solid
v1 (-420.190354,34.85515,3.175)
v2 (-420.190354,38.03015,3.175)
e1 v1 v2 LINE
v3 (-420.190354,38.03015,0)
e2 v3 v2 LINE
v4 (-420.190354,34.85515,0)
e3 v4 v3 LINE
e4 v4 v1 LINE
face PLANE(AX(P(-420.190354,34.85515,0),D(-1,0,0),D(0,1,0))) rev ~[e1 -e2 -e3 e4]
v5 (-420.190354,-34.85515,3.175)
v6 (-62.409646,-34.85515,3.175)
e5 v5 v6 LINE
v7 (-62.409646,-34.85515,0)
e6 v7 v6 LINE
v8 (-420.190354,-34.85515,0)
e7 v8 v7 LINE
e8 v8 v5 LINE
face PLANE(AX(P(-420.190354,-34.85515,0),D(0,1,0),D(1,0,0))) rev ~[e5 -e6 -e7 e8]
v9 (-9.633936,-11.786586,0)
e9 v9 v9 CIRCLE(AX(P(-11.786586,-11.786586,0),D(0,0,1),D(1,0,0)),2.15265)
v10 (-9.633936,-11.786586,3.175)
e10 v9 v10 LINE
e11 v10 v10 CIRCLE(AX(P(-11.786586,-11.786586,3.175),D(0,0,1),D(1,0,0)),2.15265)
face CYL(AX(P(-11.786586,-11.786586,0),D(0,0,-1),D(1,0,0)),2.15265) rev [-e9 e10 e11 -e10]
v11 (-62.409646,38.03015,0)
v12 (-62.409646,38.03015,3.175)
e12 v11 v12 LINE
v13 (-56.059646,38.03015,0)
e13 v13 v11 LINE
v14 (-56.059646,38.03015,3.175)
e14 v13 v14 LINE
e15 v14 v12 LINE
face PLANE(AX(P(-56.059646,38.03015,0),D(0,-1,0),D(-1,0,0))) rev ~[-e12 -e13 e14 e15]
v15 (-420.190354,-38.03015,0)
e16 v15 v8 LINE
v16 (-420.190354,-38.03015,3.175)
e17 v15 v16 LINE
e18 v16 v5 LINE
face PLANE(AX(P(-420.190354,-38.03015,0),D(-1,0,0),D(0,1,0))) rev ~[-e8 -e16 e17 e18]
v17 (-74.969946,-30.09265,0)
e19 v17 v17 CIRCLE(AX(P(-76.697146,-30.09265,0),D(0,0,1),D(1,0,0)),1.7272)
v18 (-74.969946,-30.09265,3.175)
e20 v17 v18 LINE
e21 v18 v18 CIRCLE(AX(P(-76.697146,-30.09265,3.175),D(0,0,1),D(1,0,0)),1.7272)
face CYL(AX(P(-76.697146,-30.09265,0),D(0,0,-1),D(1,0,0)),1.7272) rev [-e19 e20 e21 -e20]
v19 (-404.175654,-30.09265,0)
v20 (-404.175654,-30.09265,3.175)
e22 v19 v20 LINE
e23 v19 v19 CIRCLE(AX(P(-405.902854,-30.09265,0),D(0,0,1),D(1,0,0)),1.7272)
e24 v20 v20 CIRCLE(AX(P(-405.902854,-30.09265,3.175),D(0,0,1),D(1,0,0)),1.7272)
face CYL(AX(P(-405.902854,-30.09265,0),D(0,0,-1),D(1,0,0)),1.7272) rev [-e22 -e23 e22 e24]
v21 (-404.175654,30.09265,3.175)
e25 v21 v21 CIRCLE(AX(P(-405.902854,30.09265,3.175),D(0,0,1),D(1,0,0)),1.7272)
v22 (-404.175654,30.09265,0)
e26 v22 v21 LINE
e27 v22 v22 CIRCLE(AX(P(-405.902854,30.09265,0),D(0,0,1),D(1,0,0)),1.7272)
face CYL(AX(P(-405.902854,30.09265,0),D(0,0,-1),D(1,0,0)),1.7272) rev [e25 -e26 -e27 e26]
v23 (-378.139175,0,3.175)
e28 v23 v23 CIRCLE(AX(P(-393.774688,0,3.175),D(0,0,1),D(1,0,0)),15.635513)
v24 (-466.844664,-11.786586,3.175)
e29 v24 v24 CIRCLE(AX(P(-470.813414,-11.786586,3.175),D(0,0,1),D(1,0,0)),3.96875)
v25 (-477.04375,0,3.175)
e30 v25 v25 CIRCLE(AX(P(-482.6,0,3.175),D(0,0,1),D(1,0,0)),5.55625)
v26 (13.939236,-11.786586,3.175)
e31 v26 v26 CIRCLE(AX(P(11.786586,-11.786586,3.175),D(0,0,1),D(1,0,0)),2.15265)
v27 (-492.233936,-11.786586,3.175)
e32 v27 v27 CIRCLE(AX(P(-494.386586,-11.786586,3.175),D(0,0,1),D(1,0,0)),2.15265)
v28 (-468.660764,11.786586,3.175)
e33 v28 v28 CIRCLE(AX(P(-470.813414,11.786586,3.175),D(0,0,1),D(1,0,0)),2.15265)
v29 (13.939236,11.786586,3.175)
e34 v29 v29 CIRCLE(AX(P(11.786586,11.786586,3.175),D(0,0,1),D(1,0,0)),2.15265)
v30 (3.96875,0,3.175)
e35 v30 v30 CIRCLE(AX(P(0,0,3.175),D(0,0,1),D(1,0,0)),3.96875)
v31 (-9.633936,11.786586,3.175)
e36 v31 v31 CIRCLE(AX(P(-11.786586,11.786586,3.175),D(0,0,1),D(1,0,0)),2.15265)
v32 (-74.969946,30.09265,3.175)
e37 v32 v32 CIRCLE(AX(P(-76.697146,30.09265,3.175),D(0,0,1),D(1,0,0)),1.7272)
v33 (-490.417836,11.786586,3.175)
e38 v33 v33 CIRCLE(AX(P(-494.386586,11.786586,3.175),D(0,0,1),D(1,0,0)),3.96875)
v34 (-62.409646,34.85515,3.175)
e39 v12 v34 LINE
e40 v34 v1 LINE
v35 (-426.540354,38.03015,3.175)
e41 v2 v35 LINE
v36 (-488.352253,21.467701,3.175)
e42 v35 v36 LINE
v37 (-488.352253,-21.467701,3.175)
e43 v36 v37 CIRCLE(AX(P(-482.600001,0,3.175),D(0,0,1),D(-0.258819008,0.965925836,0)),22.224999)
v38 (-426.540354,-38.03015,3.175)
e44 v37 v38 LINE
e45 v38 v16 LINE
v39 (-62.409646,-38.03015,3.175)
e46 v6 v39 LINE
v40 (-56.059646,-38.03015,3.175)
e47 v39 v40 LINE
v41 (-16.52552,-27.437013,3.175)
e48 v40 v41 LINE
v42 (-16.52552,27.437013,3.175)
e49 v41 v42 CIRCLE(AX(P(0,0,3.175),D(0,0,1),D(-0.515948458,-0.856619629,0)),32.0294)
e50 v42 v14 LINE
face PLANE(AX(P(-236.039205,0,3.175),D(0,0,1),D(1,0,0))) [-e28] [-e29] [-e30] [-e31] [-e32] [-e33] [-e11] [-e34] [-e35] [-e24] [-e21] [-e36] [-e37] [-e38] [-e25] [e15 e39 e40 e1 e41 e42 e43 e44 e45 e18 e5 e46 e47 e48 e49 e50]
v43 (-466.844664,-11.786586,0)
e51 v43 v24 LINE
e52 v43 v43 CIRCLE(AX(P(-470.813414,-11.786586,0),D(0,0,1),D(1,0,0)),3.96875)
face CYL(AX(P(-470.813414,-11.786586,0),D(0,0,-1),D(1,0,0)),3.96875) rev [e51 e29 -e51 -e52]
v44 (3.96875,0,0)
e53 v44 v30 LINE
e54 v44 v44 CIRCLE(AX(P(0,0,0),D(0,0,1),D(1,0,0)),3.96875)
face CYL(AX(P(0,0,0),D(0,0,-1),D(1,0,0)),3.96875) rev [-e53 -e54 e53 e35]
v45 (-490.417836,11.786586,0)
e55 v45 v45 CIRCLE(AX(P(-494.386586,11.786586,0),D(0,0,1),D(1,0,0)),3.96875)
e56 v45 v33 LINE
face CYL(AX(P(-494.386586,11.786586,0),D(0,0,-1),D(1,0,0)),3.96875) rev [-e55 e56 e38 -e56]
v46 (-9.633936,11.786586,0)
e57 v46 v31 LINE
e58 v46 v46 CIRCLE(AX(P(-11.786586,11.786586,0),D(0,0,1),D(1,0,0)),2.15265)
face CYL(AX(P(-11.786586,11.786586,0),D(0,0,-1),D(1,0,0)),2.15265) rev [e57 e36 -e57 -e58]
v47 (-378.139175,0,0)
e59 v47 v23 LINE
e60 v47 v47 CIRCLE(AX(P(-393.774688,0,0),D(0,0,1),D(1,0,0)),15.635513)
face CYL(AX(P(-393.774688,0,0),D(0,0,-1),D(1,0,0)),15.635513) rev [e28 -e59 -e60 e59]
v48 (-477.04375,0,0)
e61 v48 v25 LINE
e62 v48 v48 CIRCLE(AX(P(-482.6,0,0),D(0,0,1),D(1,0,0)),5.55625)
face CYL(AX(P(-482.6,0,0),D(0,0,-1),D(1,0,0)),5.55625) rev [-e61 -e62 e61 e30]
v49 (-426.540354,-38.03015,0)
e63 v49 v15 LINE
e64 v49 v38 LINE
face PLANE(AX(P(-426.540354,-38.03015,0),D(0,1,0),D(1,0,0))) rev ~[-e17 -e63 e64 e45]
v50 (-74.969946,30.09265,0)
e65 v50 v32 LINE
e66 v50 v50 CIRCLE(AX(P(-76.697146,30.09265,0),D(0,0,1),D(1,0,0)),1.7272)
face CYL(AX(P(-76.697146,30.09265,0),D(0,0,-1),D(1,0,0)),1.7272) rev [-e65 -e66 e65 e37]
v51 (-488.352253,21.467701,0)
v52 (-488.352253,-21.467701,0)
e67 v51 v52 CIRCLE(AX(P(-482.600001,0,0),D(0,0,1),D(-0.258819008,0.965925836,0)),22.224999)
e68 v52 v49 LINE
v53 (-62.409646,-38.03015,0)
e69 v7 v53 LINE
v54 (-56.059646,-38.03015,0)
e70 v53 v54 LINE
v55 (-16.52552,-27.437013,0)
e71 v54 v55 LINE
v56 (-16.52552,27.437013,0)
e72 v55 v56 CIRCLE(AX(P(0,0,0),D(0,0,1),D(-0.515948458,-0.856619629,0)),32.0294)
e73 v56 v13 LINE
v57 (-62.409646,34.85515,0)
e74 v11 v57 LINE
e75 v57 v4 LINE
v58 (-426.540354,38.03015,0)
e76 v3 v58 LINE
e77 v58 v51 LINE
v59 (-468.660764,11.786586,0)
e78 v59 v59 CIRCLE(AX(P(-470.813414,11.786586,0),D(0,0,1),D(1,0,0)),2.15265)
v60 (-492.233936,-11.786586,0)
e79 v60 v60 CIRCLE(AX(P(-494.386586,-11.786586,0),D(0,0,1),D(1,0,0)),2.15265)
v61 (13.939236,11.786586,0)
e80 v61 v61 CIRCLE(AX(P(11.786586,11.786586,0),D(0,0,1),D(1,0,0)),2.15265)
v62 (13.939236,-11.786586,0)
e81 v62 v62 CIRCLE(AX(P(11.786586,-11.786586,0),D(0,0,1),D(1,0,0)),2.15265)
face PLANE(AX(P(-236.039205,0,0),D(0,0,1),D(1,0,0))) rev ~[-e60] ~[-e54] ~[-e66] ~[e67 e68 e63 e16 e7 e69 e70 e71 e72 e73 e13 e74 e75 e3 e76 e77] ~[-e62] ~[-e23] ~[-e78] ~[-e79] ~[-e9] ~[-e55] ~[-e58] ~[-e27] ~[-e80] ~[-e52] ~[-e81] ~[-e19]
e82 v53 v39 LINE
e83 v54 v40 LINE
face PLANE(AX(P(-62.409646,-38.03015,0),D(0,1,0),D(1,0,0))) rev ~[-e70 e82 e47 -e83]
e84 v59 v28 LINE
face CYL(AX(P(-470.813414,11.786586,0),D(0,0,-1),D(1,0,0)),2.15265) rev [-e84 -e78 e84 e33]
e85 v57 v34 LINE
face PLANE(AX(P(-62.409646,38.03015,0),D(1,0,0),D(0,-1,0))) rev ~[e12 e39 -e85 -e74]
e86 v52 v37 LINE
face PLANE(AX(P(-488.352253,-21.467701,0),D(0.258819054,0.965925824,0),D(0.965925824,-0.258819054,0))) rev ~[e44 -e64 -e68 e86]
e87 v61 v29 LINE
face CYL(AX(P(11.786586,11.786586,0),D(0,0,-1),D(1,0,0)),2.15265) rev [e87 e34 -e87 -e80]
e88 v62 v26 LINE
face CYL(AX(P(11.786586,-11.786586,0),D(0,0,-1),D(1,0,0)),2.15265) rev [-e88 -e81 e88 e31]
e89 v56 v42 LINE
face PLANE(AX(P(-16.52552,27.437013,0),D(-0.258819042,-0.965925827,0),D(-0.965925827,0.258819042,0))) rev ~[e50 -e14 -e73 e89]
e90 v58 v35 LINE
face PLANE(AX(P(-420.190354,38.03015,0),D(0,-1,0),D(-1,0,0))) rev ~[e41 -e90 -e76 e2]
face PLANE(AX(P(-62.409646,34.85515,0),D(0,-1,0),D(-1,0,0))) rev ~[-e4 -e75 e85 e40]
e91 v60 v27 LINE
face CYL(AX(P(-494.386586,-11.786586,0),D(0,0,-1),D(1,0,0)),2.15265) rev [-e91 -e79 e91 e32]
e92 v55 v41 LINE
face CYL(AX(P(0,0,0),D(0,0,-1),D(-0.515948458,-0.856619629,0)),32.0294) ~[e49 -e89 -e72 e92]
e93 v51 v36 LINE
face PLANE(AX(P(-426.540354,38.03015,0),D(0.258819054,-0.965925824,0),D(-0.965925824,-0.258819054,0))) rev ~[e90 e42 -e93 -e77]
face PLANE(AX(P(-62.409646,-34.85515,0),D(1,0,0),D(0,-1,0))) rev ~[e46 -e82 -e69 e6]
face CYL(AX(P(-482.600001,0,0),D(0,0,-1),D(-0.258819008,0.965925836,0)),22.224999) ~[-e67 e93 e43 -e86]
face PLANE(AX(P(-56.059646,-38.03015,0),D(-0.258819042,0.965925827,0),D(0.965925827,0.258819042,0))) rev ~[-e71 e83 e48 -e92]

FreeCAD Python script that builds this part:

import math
import FreeCAD as App
import Part
import Sketcher

V = App.Vector
Q = App.Units.Quantity

doc = App.newDocument("Part")
body = doc.addObject("PartDesign::Body", "Body")

sketch1 = body.newObject("Sketcher::SketchObject", "Sketch")
sketch1.AttachmentSupport = (doc.getObject("XY_Plane"), [""])
sketch1.MapMode = "FlatFace"
sketch1.addGeometry(Part.LineSegment(V(-426.5, 38, 0), V(-488.4, 21.5, 0)), False)
sketch1.addGeometry(Part.ArcOfCircle(Part.Circle(V(-482.6, 0, 0), V(0, 0, 1), 22.2), math.radians(105), math.radians(255)), False)
sketch1.addGeometry(Part.LineSegment(V(-488.4, -21.5, 0), V(-426.5, -38, 0)), False)
sketch1.addGeometry(Part.LineSegment(V(-426.5, -38, 0), V(-420.2, -38, 0)), False)
sketch1.addGeometry(Part.LineSegment(V(-420.2, -38, 0), V(-420.2, -34.9, 0)), False)
sketch1.addGeometry(Part.LineSegment(V(-420.2, -34.9, 0), V(-62.4, -34.9, 0)), False)
sketch1.addGeometry(Part.LineSegment(V(-62.4, -34.9, 0), V(-62.4, -38, 0)), False)
sketch1.addGeometry(Part.LineSegment(V(-62.4, -38, 0), V(-56.1, -38, 0)), False)
sketch1.addGeometry(Part.LineSegment(V(-56.1, -38, 0), V(-16.5, -27.4, 0)), False)
sketch1.addGeometry(Part.ArcOfCircle(Part.Circle(V(0, 0, 0), V(0, 0, 1), 32), math.radians(-121), math.radians(121)), False)
sketch1.addGeometry(Part.LineSegment(V(-16.5, 27.4, 0), V(-56.1, 38, 0)), False)
sketch1.addGeometry(Part.LineSegment(V(-56.1, 38, 0), V(-62.4, 38, 0)), False)
sketch1.addGeometry(Part.LineSegment(V(-62.4, 38, 0), V(-62.4, 34.9, 0)), False)
sketch1.addGeometry(Part.LineSegment(V(-62.4, 34.9, 0), V(-420.2, 34.9, 0)), False)
sketch1.addGeometry(Part.LineSegment(V(-420.2, 34.9, 0), V(-420.2, 38, 0)), False)
sketch1.addGeometry(Part.LineSegment(V(-420.2, 38, 0), V(-426.5, 38, 0)), False)
sketch1.addGeometry(Part.Circle(V(-405.9, -30.1, 0), V(0, 0, 1), 1.7), False)
sketch1.addGeometry(Part.Circle(V(-494.4, -11.8, 0), V(0, 0, 1), 2.2), False)
sketch1.addGeometry(Part.Circle(V(-470.8, -11.8, 0), V(0, 0, 1), 4), False)
sketch1.addGeometry(Part.Circle(V(-482.6, 0, 0), V(0, 0, 1), 5.6), False)
sketch1.addGeometry(Part.Circle(V(-393.8, 0, 0), V(0, 0, 1), 15.6), False)
sketch1.addGeometry(Part.Circle(V(-76.7, -30.1, 0), V(0, 0, 1), 1.7), False)
sketch1.addGeometry(Part.Circle(V(-11.8, -11.8, 0), V(0, 0, 1), 2.2), False)
sketch1.addGeometry(Part.Circle(V(11.8, -11.8, 0), V(0, 0, 1), 2.2), False)
sketch1.addGeometry(Part.Circle(V(0, 0, 0), V(0, 0, 1), 4), False)
sketch1.addGeometry(Part.Circle(V(-494.4, 11.8, 0), V(0, 0, 1), 4), False)
sketch1.addGeometry(Part.Circle(V(-470.8, 11.8, 0), V(0, 0, 1), 2.2), False)
sketch1.addGeometry(Part.Circle(V(-405.9, 30.1, 0), V(0, 0, 1), 1.7), False)
sketch1.addGeometry(Part.Circle(V(-11.8, 11.8, 0), V(0, 0, 1), 2.2), False)
sketch1.addGeometry(Part.Circle(V(11.8, 11.8, 0), V(0, 0, 1), 2.2), False)
sketch1.addGeometry(Part.Circle(V(-76.7, 30.1, 0), V(0, 0, 1), 1.7), False)
sketch1.addConstraint(Sketcher.Constraint("Tangent", 0, 2, 1, 1))
sketch1.addConstraint(Sketcher.Constraint("Tangent", 1, 2, 2, 1))
sketch1.addConstraint(Sketcher.Constraint("Coincident", 2, 2, 3, 1))
sketch1.addConstraint(Sketcher.Constraint("Coincident", 3, 2, 4, 1))
sketch1.addConstraint(Sketcher.Constraint("Coincident", 4, 2, 5, 1))
sketch1.addConstraint(Sketcher.Constraint("Coincident", 5, 2, 6, 1))
sketch1.addConstraint(Sketcher.Constraint("Coincident", 6, 2, 7, 1))
sketch1.addConstraint(Sketcher.Constraint("Coincident", 7, 2, 8, 1))
sketch1.addConstraint(Sketcher.Constraint("Coincident", 8, 2, 9, 1))
sketch1.addConstraint(Sketcher.Constraint("Coincident", 9, 2, 10, 1))
sketch1.addConstraint(Sketcher.Constraint("Coincident", 10, 2, 11, 1))
sketch1.addConstraint(Sketcher.Constraint("Coincident", 11, 2, 12, 1))
sketch1.addConstraint(Sketcher.Constraint("Coincident", 12, 2, 13, 1))
sketch1.addConstraint(Sketcher.Constraint("Coincident", 13, 2, 14, 1))
sketch1.addConstraint(Sketcher.Constraint("Coincident", 14, 2, 15, 1))
sketch1.addConstraint(Sketcher.Constraint("Coincident", 15, 2, 0, 1))
sketch1.addConstraint(Sketcher.Constraint("Horizontal", 3))
sketch1.addConstraint(Sketcher.Constraint("Vertical", 4))
sketch1.addConstraint(Sketcher.Constraint("Horizontal", 5))
sketch1.addConstraint(Sketcher.Constraint("Vertical", 6))
sketch1.addConstraint(Sketcher.Constraint("Horizontal", 7))
sketch1.addConstraint(Sketcher.Constraint("Horizontal", 11))
sketch1.addConstraint(Sketcher.Constraint("Vertical", 12))
sketch1.addConstraint(Sketcher.Constraint("Horizontal", 13))
sketch1.addConstraint(Sketcher.Constraint("Vertical", 14))
sketch1.addConstraint(Sketcher.Constraint("Horizontal", 15))
sketch1.addConstraint(Sketcher.Constraint("Coincident", 9, 3, -1, 1))
sketch1.addConstraint(Sketcher.Constraint("Coincident", 24, 3, -1, 1))
sketch1.addConstraint(Sketcher.Constraint("Coincident", 19, 3, 1, 3))
sketch1.addConstraint(Sketcher.Constraint("Equal", 16, 21))
sketch1.addConstraint(Sketcher.Constraint("Equal", 17, 22))
sketch1.addConstraint(Sketcher.Constraint("Equal", 22, 23))
sketch1.addConstraint(Sketcher.Constraint("Equal", 18, 24))
sketch1.addConstraint(Sketcher.Constraint("Equal", 24, 25))
sketch1.addConstraint(Sketcher.Constraint("Equal", 23, 26))
sketch1.addConstraint(Sketcher.Constraint("Equal", 21, 27))
sketch1.addConstraint(Sketcher.Constraint("Equal", 26, 28))
sketch1.addConstraint(Sketcher.Constraint("Equal", 28, 29))
sketch1.addConstraint(Sketcher.Constraint("Equal", 27, 30))
sketch1.addConstraint(Sketcher.Constraint("Symmetric", 23, 3, 28, 3, -1, 1))
sketch1.addConstraint(Sketcher.Constraint("Symmetric", 22, 3, 29, 3, -1, 1))
sketch1.addConstraint(Sketcher.Constraint("Symmetric", 22, 3, 23, 3, -2))
sketch1.addConstraint(Sketcher.Constraint("Symmetric", 17, 3, 25, 3, -1))
sketch1.addConstraint(Sketcher.Constraint("Symmetric", 18, 3, 26, 3, -1))
sketch1.addConstraint(Sketcher.Constraint("Symmetric", 16, 3, 27, 3, -1))
sketch1.addConstraint(Sketcher.Constraint("Symmetric", 21, 3, 30, 3, -1))
sketch1.addConstraint(Sketcher.Constraint("Symmetric", 0, 2, 1, 2, -1))
sketch1.addConstraint(Sketcher.Constraint("Symmetric", 7, 2, 10, 2, -1))
sketch1.addConstraint(Sketcher.Constraint("Symmetric", 5, 2, 12, 2, -1))
sketch1.addConstraint(Sketcher.Constraint("Symmetric", 3, 2, 14, 2, -1))
sketch1.addConstraint(Sketcher.Constraint("PointOnObject", 20, 3, -1))
sketch1.addConstraint(Sketcher.Constraint("Parallel", 0, 8))
sketch1.addConstraint(Sketcher.Constraint("Parallel", 2, 10))
sketch1.addConstraint(Sketcher.Constraint("Horizontal", 17, 3, 18, 3))
sketch1.addConstraint(Sketcher.Constraint("Horizontal", 16, 3, 21, 3))
sketch1.addConstraint(Sketcher.Constraint("Horizontal", 18, 3, 22, 3))
sketch1.addConstraint(Sketcher.Constraint("Horizontal", 3, 2, 6, 2))
sketch1.addConstraint(Sketcher.Constraint("Equal", 3, 7))
sketch1.addConstraint(Sketcher.Constraint("Diameter", 16, Q("0.136 in")))
sketch1.addConstraint(Sketcher.Constraint("Diameter", 18, Q("0.3125 in")))
sketch1.addConstraint(Sketcher.Constraint("Diameter", 19, Q("0.4375 in")))
sketch1.addConstraint(Sketcher.Constraint("DistanceX", 1, 3, -1, 1, Q("19 in")))
sketch1.addConstraint(Sketcher.Constraint("Angle", 0, Q("-164.999999 deg")))
sketch1.addConstraint(Sketcher.Constraint("Radius", 1, Q("0.875 in")))
sketch1.addConstraint(Sketcher.Constraint("Radius", 9, Q("1.261 in")))
sketch1.addConstraint(Sketcher.Constraint("Diameter", 17, Q("0.1695 in")))
sketch1.addConstraint(Sketcher.Constraint("DistanceX", 3, 1, 3, 2, Q("0.25 in")))
sketch1.addConstraint(Sketcher.Constraint("DistanceY", 4, 1, 4, 2, Q("0.125 in")))
sketch1.addConstraint(Sketcher.Constraint("DistanceX", 2, 2, 16, 3, Q("0.8125 in")))
sketch1.addConstraint(Sketcher.Constraint("DistanceY", 2, 2, 16, 3, Q("0.3125 in")))
sketch1.addConstraint(Sketcher.Constraint("DistanceY", 3, 2, 27, 3, Q("2.682 in")))
sketch1.addConstraint(Sketcher.Constraint("DistanceX", 21, 3, 5, 2, Q("0.5625 in")))
sketch1.addConstraint(Sketcher.Constraint("Diameter", 20, 31.271026))
sketch1.addConstraint(Sketcher.Constraint("DistanceX", 5, 1, 5, 2, 357.780708))
sketch1.addConstraint(Sketcher.Constraint("DistanceY", 8, 2, 28, 3, 39.223599))
sketch1.addConstraint(Sketcher.Constraint("DistanceX", 20, 3, -1, 1, 393.774688))
sketch1.addConstraint(Sketcher.Constraint("DistanceX", 17, 3, 18, 3, 23.573172))
sketch1.addConstraint(Sketcher.Constraint("DistanceX", 18, 3, 16, 3, 64.91056))
sketch1.addConstraint(Sketcher.Constraint("DistanceX", 21, 3, 22, 3, 64.91056))
pad1 = body.newObject("PartDesign::Pad", "Pad")
pad1.Profile = sketch1
pad1.Length = Q("0.125 in")

doc.recompute()
